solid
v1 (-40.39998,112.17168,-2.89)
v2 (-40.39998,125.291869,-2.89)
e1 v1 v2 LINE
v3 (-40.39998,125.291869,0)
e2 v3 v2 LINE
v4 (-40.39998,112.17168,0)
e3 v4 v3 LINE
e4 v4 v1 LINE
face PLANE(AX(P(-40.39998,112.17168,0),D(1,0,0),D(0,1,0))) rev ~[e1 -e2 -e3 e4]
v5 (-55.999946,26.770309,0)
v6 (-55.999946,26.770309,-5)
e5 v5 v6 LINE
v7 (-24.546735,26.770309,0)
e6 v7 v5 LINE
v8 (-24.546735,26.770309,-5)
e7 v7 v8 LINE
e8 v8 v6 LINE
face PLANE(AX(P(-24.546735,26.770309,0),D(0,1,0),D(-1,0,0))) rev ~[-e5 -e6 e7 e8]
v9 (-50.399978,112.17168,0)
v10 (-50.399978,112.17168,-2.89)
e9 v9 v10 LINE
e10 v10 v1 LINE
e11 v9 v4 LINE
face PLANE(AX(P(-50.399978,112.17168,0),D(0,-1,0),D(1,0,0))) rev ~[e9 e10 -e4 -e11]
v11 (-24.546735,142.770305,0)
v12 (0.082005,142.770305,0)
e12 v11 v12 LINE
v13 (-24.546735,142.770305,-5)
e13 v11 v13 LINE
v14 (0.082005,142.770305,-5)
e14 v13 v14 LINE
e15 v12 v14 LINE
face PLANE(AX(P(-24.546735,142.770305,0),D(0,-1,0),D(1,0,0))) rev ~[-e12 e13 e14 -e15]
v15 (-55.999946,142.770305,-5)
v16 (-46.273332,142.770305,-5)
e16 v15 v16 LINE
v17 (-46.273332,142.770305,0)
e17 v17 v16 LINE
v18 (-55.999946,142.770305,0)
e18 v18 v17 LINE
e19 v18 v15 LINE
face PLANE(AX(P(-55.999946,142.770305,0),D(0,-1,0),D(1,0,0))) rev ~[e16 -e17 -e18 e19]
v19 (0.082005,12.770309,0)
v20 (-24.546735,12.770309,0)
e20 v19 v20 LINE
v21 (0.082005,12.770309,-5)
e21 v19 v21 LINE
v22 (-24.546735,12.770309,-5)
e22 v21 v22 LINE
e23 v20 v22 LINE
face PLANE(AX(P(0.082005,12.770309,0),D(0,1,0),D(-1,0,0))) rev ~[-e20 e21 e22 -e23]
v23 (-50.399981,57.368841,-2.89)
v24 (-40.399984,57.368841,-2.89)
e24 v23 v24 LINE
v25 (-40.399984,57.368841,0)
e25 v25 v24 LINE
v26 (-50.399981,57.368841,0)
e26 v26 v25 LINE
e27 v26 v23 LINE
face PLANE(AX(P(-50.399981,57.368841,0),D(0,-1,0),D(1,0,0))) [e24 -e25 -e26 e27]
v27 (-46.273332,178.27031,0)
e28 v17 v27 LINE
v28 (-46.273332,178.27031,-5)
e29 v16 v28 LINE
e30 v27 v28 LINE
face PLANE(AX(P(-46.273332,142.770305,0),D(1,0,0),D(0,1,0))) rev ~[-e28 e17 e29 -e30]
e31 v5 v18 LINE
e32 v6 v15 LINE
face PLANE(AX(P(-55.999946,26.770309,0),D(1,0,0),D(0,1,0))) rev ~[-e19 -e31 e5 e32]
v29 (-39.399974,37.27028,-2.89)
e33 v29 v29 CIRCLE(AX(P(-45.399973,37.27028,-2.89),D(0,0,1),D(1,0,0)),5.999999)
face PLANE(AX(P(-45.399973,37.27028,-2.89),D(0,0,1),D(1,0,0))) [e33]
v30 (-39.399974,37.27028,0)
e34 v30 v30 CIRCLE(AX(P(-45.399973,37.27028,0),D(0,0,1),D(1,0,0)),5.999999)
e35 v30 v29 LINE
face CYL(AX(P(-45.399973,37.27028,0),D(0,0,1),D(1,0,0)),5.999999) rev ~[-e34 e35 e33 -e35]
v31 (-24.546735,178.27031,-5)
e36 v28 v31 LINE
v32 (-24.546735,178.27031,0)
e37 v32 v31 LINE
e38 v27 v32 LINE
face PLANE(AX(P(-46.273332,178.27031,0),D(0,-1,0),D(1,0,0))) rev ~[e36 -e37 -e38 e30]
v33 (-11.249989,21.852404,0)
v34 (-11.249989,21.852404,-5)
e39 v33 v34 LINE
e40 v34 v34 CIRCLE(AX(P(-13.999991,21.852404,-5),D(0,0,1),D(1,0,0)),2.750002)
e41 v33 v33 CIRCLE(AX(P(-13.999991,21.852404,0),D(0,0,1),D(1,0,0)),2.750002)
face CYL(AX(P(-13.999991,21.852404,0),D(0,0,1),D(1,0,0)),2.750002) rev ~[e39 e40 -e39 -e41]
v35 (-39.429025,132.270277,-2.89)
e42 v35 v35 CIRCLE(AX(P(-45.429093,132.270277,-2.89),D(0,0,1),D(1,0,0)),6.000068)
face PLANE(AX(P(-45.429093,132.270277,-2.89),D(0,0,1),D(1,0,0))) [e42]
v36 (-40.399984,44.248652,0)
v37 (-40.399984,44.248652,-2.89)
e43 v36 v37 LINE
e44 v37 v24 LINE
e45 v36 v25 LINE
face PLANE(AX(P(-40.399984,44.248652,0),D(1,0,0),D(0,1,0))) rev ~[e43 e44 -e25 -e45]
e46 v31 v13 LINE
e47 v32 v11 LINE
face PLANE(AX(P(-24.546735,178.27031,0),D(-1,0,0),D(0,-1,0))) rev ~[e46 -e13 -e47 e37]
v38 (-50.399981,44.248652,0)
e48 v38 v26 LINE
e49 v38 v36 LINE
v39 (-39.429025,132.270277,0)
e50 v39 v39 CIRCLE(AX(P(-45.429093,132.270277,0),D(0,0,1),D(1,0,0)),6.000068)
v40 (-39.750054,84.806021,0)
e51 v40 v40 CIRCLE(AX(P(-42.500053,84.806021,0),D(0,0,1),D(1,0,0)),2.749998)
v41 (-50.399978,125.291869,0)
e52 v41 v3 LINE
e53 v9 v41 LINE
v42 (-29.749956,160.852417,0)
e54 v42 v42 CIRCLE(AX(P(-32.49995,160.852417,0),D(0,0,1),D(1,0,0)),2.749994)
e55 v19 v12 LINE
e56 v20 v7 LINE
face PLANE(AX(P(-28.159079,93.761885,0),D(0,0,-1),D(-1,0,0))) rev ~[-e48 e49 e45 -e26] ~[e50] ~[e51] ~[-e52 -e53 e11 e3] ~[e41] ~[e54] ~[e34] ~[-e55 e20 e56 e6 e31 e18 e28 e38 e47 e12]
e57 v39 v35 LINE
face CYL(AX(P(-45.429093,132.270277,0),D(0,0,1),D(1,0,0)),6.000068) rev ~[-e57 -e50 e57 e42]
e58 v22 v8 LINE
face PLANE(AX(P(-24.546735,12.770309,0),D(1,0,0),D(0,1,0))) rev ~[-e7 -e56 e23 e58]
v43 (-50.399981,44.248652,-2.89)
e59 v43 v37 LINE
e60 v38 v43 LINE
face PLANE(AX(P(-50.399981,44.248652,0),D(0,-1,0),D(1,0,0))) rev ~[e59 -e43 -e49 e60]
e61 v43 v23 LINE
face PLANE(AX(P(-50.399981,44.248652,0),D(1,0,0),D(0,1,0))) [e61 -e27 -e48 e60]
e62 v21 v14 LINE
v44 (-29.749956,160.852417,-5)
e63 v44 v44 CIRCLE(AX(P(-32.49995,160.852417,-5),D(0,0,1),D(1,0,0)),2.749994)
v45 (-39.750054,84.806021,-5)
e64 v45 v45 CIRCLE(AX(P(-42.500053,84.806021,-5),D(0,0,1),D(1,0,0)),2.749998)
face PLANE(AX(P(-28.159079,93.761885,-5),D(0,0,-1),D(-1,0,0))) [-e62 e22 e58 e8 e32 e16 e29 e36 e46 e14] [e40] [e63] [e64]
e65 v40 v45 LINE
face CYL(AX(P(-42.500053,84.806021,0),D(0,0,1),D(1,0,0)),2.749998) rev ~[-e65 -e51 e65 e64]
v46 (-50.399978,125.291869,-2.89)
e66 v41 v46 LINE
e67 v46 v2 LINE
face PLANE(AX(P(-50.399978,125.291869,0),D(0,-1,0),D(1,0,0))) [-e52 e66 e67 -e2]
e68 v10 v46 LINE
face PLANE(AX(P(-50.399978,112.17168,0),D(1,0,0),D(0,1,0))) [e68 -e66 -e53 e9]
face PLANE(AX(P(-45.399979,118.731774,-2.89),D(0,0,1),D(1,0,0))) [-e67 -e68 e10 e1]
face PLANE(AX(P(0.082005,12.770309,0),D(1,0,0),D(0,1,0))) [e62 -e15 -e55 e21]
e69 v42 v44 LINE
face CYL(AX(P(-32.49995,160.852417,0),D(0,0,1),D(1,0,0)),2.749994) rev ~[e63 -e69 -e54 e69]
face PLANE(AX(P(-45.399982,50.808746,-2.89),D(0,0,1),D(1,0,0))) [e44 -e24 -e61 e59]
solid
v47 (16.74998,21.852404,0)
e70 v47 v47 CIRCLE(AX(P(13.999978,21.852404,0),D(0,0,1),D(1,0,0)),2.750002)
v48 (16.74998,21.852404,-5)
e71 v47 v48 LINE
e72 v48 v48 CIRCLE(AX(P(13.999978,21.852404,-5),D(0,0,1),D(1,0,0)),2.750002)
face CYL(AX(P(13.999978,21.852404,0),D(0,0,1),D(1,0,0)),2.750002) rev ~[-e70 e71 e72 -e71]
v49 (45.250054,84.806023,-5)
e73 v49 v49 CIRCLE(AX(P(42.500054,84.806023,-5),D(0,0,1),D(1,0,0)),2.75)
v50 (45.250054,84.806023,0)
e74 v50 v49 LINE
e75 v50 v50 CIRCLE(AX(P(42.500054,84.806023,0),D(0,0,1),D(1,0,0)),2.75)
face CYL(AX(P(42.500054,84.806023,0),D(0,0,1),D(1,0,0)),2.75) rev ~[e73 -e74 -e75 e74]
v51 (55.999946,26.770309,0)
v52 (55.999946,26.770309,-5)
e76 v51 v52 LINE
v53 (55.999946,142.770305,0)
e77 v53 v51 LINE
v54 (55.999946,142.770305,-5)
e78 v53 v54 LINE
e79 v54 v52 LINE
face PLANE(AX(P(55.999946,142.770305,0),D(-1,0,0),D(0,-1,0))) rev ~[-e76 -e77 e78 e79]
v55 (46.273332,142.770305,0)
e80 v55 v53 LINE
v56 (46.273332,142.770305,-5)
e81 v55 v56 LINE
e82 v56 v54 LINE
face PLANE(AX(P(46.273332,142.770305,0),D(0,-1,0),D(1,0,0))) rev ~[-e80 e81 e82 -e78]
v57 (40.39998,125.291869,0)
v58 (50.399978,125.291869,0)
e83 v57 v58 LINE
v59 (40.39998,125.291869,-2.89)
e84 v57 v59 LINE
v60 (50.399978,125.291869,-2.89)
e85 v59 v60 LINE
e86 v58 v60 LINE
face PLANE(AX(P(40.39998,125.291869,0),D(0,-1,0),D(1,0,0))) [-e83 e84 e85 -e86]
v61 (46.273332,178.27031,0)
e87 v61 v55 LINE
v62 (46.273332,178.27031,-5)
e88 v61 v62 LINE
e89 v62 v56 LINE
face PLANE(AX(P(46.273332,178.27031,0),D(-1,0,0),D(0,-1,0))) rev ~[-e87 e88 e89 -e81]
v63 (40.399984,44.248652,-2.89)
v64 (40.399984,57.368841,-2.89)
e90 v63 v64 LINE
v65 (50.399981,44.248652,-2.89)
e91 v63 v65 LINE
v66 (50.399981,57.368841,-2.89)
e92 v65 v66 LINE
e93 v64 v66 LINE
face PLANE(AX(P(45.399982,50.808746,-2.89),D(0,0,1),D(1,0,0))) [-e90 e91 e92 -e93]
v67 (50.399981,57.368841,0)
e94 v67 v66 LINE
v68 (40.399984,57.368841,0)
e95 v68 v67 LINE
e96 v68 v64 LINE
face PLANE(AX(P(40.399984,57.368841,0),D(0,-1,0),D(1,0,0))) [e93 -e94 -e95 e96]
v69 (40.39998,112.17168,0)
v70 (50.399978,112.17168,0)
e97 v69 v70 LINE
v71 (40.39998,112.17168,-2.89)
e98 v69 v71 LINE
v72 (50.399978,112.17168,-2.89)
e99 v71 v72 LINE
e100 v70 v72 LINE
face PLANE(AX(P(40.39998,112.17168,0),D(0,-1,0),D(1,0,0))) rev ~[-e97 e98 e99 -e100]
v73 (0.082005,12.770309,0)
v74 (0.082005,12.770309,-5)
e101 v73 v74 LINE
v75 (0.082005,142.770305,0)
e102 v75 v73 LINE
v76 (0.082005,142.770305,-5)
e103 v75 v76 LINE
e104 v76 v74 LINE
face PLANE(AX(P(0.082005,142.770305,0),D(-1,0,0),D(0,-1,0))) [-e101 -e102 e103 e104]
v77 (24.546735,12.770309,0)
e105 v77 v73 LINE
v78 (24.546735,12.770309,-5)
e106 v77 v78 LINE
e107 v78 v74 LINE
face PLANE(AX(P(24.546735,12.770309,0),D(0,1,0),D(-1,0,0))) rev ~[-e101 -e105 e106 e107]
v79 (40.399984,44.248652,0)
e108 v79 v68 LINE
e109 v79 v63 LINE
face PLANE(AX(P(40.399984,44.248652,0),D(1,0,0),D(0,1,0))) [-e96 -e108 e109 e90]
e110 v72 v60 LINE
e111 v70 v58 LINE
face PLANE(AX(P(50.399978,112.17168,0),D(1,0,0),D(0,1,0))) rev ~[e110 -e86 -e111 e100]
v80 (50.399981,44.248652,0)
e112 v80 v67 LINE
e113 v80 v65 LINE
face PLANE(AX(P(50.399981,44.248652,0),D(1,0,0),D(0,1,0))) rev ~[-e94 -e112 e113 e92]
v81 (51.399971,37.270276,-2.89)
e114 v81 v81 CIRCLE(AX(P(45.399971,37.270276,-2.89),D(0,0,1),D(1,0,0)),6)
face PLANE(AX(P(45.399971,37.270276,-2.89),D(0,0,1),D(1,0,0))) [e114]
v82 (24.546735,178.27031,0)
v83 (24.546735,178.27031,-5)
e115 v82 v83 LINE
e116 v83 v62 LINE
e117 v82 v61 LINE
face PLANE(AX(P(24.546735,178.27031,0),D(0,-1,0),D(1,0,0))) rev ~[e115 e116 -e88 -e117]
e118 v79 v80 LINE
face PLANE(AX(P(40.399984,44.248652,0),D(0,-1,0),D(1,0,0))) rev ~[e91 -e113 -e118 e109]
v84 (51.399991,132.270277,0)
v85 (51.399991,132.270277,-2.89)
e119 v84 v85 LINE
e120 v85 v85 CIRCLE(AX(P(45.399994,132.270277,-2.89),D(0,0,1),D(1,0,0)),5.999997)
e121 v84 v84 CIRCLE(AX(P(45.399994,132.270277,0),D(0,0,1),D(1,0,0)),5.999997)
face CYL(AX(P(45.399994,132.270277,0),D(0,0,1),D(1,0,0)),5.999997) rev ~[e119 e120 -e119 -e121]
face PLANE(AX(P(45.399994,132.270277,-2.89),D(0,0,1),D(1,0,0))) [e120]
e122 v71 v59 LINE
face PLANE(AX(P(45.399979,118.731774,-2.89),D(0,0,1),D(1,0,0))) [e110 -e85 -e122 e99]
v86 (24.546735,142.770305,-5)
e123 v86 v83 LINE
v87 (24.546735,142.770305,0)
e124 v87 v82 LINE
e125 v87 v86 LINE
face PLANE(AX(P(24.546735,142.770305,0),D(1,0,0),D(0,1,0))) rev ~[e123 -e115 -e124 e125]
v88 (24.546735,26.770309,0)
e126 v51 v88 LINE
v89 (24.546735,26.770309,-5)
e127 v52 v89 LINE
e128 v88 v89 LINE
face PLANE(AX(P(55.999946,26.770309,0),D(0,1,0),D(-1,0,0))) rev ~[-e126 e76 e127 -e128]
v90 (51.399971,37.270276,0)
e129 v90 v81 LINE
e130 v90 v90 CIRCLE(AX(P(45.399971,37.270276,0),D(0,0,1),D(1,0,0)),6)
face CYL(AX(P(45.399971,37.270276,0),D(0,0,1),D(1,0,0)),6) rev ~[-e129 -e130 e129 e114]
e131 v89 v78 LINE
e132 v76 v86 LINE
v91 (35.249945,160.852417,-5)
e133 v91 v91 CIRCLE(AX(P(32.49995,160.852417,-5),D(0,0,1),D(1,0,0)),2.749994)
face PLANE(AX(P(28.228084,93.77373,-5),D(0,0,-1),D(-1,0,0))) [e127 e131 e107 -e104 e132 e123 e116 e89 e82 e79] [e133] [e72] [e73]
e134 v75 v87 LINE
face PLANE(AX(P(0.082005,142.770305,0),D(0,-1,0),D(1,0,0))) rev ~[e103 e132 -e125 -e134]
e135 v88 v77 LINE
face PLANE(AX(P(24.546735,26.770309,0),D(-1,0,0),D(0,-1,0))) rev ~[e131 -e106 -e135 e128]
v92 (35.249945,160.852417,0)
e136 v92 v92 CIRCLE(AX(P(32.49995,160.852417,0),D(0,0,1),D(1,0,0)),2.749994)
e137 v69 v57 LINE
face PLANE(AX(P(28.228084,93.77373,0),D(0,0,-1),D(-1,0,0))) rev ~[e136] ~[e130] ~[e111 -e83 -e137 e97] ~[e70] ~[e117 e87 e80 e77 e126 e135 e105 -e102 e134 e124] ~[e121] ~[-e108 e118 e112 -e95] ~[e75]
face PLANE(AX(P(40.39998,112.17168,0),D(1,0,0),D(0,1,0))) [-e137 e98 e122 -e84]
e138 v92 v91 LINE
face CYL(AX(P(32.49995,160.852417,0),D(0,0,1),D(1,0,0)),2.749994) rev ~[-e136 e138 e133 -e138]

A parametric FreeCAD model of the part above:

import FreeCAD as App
import Part
import Sketcher

V = App.Vector


def add_polygon(sketch, points):
    """Adds a closed chain of lines whose ends are joined by coincident constraints."""
    first, n = sketch.GeometryCount, len(points)
    for a, b in zip(points, points[1:] + points[:1]):
        sketch.addGeometry(Part.LineSegment(App.Vector(*a, 0), App.Vector(*b, 0)), False)
    for i in range(n):
        sketch.addConstraint(Sketcher.Constraint("Coincident", first + i, 2, first + (i + 1) % n, 1))

doc = App.newDocument("Part")
params = doc.addObject("Spreadsheet::Sheet", "Params")
for row, (alias, value) in enumerate([
    ("sketch1_height", "14 mm"),
    ("pad1_length", "5 mm"),
    ("sketch3_diameter", "11.999998 mm"),
    ("pocket2_length", "2.89 mm"),
    ("sketch4_height", "14 mm"),
    ("pad2_length", "5 mm"),
    ("sketch5_diameter", "5.5 mm"),
    ("sketch6_diameter", "11.999999 mm"),
    ("pocket4_length", "2.89 mm"),
], start=1):
    params.set(f"A{row}", alias)
    params.set(f"B{row}", "=" + value)
    params.setAlias(f"B{row}", alias)

body = doc.addObject("PartDesign::Body", "Body")

sketch1 = body.newObject("Sketcher::SketchObject", "Sketch")
sketch1.AttachmentSupport = (doc.getObject("XY_Plane"), [""])
sketch1.MapMode = "FlatFace"
add_polygon(sketch1, [(0, 143), (-25, 143), (-25, 178), (-46, 178), (-46, 143), (-56, 143), (-56, 27), (-25, 27), (-25, 13), (0, 13)])
sketch1.addConstraint([
    Sketcher.Constraint("Horizontal", 0),
    Sketcher.Constraint("Vertical", 1),
    Sketcher.Constraint("Horizontal", 2),
    Sketcher.Constraint("Vertical", 3),
    Sketcher.Constraint("Horizontal", 4),
    Sketcher.Constraint("Vertical", 5),
    Sketcher.Constraint("Horizontal", 6),
    Sketcher.Constraint("Vertical", 7),
    Sketcher.Constraint("Horizontal", 8),
    Sketcher.Constraint("Vertical", 9),
    Sketcher.Constraint("Horizontal", 0, 2, 3, 2),
    Sketcher.Constraint("Vertical", 1, 2, 6, 2),
    Sketcher.Constraint("DistanceY", 7, 2, 7, 1, 14.0),
    Sketcher.Constraint("DistanceY", 5, 2, 2, 2, 151.500002),
    Sketcher.Constraint("DistanceX", 0, 2, 0, 1, 24.62874),
    Sketcher.Constraint("DistanceX", 6, 1, 6, 2, 31.453211),
    Sketcher.Constraint("DistanceX", 2, 2, 2, 1, 21.726597),
    Sketcher.Constraint("DistanceY", 1, 1, 1, 2, 35.500005),
    Sketcher.Constraint("DistanceY", -1, 1, 1, 2, 178.27031),
    Sketcher.Constraint("DistanceX", 0, 2, -1, 1, 24.546735),
])
sketch1.setExpression("Constraints[22]", "Params.sketch1_height")
pad1 = body.newObject("PartDesign::Pad", "Pad")
pad1.Profile = sketch1
pad1.setExpression("Length", "Params.pad1_length")
pad1.Reversed = True

sketch2 = body.newObject("Sketcher::SketchObject", "Sketch001")
sketch2.AttachmentSupport = (doc.getObject("XY_Plane"), [""])
sketch2.MapMode = "FlatFace"
sketch2.addGeometry([
    Part.Circle(V(-14, 21.9, 0), V(0, 0, 1), 2.8),
    Part.Circle(V(-42.5, 84.8, 0), V(0, 0, 1), 2.7),
    Part.Circle(V(-32.5, 160.9, 0), V(0, 0, 1), 2.7),
], False)
sketch2.addConstraint([
    Sketcher.Constraint("Diameter", 2, 5.499989),
    Sketcher.Constraint("Diameter", 0, 5.500004),
    Sketcher.Constraint("Diameter", 1, 5.499996),
    Sketcher.Constraint("DistanceX", 0, 3, -1, 1, 13.999991),
    Sketcher.Constraint("DistanceY", -1, 1, 1, 3, 84.806021),
    Sketcher.Constraint("DistanceX", 2, 3, -1, 1, 32.49995),
    Sketcher.Constraint("DistanceX", 1, 3, 0, 3, 28.500061),
    Sketcher.Constraint("DistanceY", -1, 1, 0, 3, 21.852404),
    Sketcher.Constraint("DistanceY", -1, 1, 2, 3, 160.852417),
])
pocket1 = body.newObject("PartDesign::Pocket", "Pocket")
pocket1.Profile = sketch2
pocket1.Type = "ThroughAll"

sketch3 = body.newObject("Sketcher::SketchObject", "Sketch002")
sketch3.AttachmentSupport = (doc.getObject("XY_Plane"), [""])
sketch3.MapMode = "FlatFace"
sketch3.addGeometry(Part.Circle(V(-45, 37, 0), V(0, 0, 1), 6), False)
sketch3.addGeometry(Part.Circle(V(-45, 132, 0), V(0, 0, 1), 6), False)
add_polygon(sketch3, [(-50, 57), (-50, 44), (-40, 44), (-40, 57)])
add_polygon(sketch3, [(-50, 125), (-50, 112), (-40, 112), (-40, 125)])
sketch3.addConstraint([
    Sketcher.Constraint("Vertical", 2),
    Sketcher.Constraint("Horizontal", 3),
    Sketcher.Constraint("Vertical", 4),
    Sketcher.Constraint("Horizontal", 5),
    Sketcher.Constraint("Vertical", 6),
    Sketcher.Constraint("Horizontal", 7),
    Sketcher.Constraint("Vertical", 8),
    Sketcher.Constraint("Horizontal", 9),
    Sketcher.Constraint("Equal", 5, 7),
    Sketcher.Constraint("Equal", 4, 6),
    Sketcher.Constraint("Diameter", 0, 11.999998),
    Sketcher.Constraint("DistanceX", 5, 2, 7, 2, 10.000002),
    Sketcher.Constraint("Diameter", 1, 12.000136),
    Sketcher.Constraint("DistanceY", 2, 2, 2, 1, 13.120189),
    Sketcher.Constraint("DistanceX", 3, 1, 3, 2, 9.999998),
    Sketcher.Constraint("DistanceY", -1, 1, 0, 3, 37.27028),
    Sketcher.Constraint("DistanceX", 2, 2, -1, 1, 50.399981),
    Sketcher.Constraint("DistanceY", -1, 1, 2, 2, 44.248652),
    Sketcher.Constraint("DistanceY", -1, 1, 6, 2, 112.17168),
    Sketcher.Constraint("DistanceX", 1, 3, 0, 3, 0.02912),
    Sketcher.Constraint("DistanceX", 2, 2, 0, 3, 5.000008),
    Sketcher.Constraint("DistanceY", -1, 1, 1, 3, 132.270277),
])
sketch3.setExpression("Constraints[18]", "Params.sketch3_diameter")
pocket2 = body.newObject("PartDesign::Pocket", "Pocket001")
pocket2.Profile = sketch3
pocket2.setExpression("Length", "Params.pocket2_length")
body2 = doc.addObject("PartDesign::Body", "Body001")

sketch4 = body2.newObject("Sketcher::SketchObject", "Sketch003")
sketch4.AttachmentSupport = (doc.getObject("XY_Plane001"), [""])
sketch4.MapMode = "FlatFace"
add_polygon(sketch4, [(56, 143), (46, 143), (46, 178), (25, 178), (25, 143), (0, 143), (0, 13), (25, 13), (25, 27), (56, 27)])
sketch4.addConstraint([
    Sketcher.Constraint("Horizontal", 0),
    Sketcher.Constraint("Vertical", 1),
    Sketcher.Constraint("Horizontal", 2),
    Sketcher.Constraint("Vertical", 3),
    Sketcher.Constraint("Horizontal", 4),
    Sketcher.Constraint("Vertical", 5),
    Sketcher.Constraint("Horizontal", 6),
    Sketcher.Constraint("Vertical", 7),
    Sketcher.Constraint("Horizontal", 8),
    Sketcher.Constraint("Vertical", 9),
    Sketcher.Constraint("Horizontal", 0, 2, 3, 2),
    Sketcher.Constraint("Vertical", 3, 2, 6, 2),
    Sketcher.Constraint("DistanceY", 7, 1, 7, 2, 14.0),
    Sketcher.Constraint("DistanceY", 5, 2, 2, 2, 165.500001),
    Sketcher.Constraint("DistanceX", 4, 2, 4, 1, 24.46473),
    Sketcher.Constraint("DistanceX", 8, 1, 8, 2, 31.453211),
    Sketcher.Constraint("DistanceX", 0, 2, 0, 1, 9.726614),
    Sketcher.Constraint("DistanceY", 1, 1, 1, 2, 35.500005),
    Sketcher.Constraint("DistanceY", -1, 1, 1, 2, 178.27031),
    Sketcher.Constraint("DistanceX", -1, 1, 0, 2, 46.273332),
])
sketch4.setExpression("Constraints[22]", "Params.sketch4_height")
pad2 = body2.newObject("PartDesign::Pad", "Pad001")
pad2.Profile = sketch4
pad2.setExpression("Length", "Params.pad2_length")
pad2.Reversed = True

sketch5 = body2.newObject("Sketcher::SketchObject", "Sketch004")
sketch5.AttachmentSupport = (doc.getObject("XY_Plane001"), [""])
sketch5.MapMode = "FlatFace"
sketch5.addGeometry([
    Part.Circle(V(32.5, 160.9, 0), V(0, 0, 1), 2.7),
    Part.Circle(V(42.5, 84.8, 0), V(0, 0, 1), 2.8),
    Part.Circle(V(14, 21.9, 0), V(0, 0, 1), 2.8),
], False)
sketch5.addConstraint([
    Sketcher.Constraint("Equal", 1, 2),
    Sketcher.Constraint("Diameter", 1, 5.5),
    Sketcher.Constraint("Diameter", 0, 5.499989),
    Sketcher.Constraint("DistanceX", -1, 1, 0, 3, 32.49995),
    Sketcher.Constraint("DistanceY", 2, 3, 1, 3, 62.953619),
    Sketcher.Constraint("DistanceY", -1, 1, 0, 3, 160.852417),
    Sketcher.Constraint("DistanceX", -1, 1, 1, 3, 42.500054),
    Sketcher.Constraint("DistanceY", -1, 1, 1, 3, 84.806023),
    Sketcher.Constraint("DistanceX", -1, 1, 2, 3, 13.999978),
])
sketch5.setExpression("Constraints[1]", "Params.sketch5_diameter")
pocket3 = body2.newObject("PartDesign::Pocket", "Pocket002")
pocket3.Profile = sketch5
pocket3.Type = "ThroughAll"

sketch6 = body2.newObject("Sketcher::SketchObject", "Sketch005")
sketch6.AttachmentSupport = (doc.getObject("XY_Plane001"), [""])
sketch6.MapMode = "FlatFace"
sketch6.addGeometry(Part.Circle(V(45, 132, 0), V(0, 0, 1), 6), False)
sketch6.addGeometry(Part.Circle(V(45, 37, 0), V(0, 0, 1), 6), False)
add_polygon(sketch6, [(40, 125), (40, 112), (50, 112), (50, 125)])
add_polygon(sketch6, [(40, 57), (40, 44), (50, 44), (50, 57)])
sketch6.addConstraint([
    Sketcher.Constraint("Vertical", 2),
    Sketcher.Constraint("Horizontal", 3),
    Sketcher.Constraint("Vertical", 4),
    Sketcher.Constraint("Horizontal", 5),
    Sketcher.Constraint("Vertical", 6),
    Sketcher.Constraint("Horizontal", 7),
    Sketcher.Constraint("Vertical", 8),
    Sketcher.Constraint("Horizontal", 9),
    Sketcher.Constraint("Equal", 5, 7),
    Sketcher.Constraint("Equal", 4, 6),
    Sketcher.Constraint("Diameter", 1, 11.999999),
    Sketcher.Constraint("DistanceY", 1, 3, 0, 3, 95.0),
    Sketcher.Constraint("DistanceX", 2, 2, 7, 2, 10.000002),
    Sketcher.Constraint("Diameter", 0, 11.999995),
    Sketcher.Constraint("DistanceY", 2, 2, 2, 1, 13.120189),
    Sketcher.Constraint("DistanceX", 3, 1, 3, 2, 9.999998),
    Sketcher.Constraint("DistanceX", -1, 1, 1, 3, 45.399971),
    Sketcher.Constraint("DistanceX", -1, 1, 2, 2, 40.39998),
    Sketcher.Constraint("DistanceY", -1, 1, 2, 2, 112.17168),
    Sketcher.Constraint("DistanceY", -1, 1, 6, 2, 44.248652),
    Sketcher.Constraint("DistanceX", -1, 1, 0, 3, 45.399994),
    Sketcher.Constraint("DistanceY", -1, 1, 0, 3, 132.270277),
])
sketch6.setExpression("Constraints[18]", "Params.sketch6_diameter")
pocket4 = body2.newObject("PartDesign::Pocket", "Pocket003")
pocket4.Profile = sketch6
pocket4.setExpression("Length", "Params.pocket4_length")

doc.recompute()
